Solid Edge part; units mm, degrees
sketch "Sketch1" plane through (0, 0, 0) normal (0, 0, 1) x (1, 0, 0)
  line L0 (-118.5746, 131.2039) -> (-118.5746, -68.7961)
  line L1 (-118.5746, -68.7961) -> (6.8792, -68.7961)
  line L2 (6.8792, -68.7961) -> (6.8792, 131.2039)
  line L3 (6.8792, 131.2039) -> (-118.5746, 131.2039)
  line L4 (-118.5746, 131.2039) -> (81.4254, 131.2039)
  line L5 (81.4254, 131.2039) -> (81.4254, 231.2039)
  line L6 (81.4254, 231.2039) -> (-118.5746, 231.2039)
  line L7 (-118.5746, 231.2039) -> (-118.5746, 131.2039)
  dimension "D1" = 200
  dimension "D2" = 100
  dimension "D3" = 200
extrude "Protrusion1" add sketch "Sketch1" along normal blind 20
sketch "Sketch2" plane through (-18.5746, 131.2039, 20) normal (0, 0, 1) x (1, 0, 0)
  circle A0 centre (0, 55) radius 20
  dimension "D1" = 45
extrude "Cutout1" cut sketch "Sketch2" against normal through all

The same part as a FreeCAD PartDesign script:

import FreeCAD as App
import Part
import Sketcher
from FreeCAD import Vector

doc = App.newDocument("Part")
body = doc.addObject("PartDesign::Body", "Body")

sketch1 = body.newObject("Sketcher::SketchObject", "Sketch")
sketch1.AttachmentSupport = (doc.getObject("XY_Plane"), [""])
sketch1.MapMode = "FlatFace"
sketch1.addGeometry(Part.LineSegment(Vector(6.8792, -68.7961, 0), Vector(6.8792, 131.2039, 0)), False)
sketch1.addGeometry(Part.LineSegment(Vector(6.8792, 131.2039, 0), Vector(81.4254, 131.2039, 0)), False)
sketch1.addGeometry(Part.LineSegment(Vector(81.4254, 131.2039, 0), Vector(81.4254, 231.2039, 0)), False)
sketch1.addGeometry(Part.LineSegment(Vector(81.4254, 231.2039, 0), Vector(-118.5746, 231.2039, 0)), False)
sketch1.addGeometry(Part.LineSegment(Vector(-118.5746, 231.2039, 0), Vector(-118.5746, -68.7961, 0)), False)
sketch1.addGeometry(Part.LineSegment(Vector(-118.5746, -68.7961, 0), Vector(6.8792, -68.7961, 0)), False)
sketch1.addConstraint(Sketcher.Constraint("Coincident", 0, 2, 1, 1))
sketch1.addConstraint(Sketcher.Constraint("Coincident", 1, 2, 2, 1))
sketch1.addConstraint(Sketcher.Constraint("Coincident", 2, 2, 3, 1))
sketch1.addConstraint(Sketcher.Constraint("Coincident", 3, 2, 4, 1))
sketch1.addConstraint(Sketcher.Constraint("Coincident", 4, 2, 5, 1))
sketch1.addConstraint(Sketcher.Constraint("Coincident", 5, 2, 0, 1))
sketch1.addConstraint(Sketcher.Constraint("Vertical", 0))
sketch1.addConstraint(Sketcher.Constraint("Horizontal", 1))
sketch1.addConstraint(Sketcher.Constraint("Vertical", 2))
sketch1.addConstraint(Sketcher.Constraint("Horizontal", 3))
sketch1.addConstraint(Sketcher.Constraint("Vertical", 4))
sketch1.addConstraint(Sketcher.Constraint("Horizontal", 5))
sketch1.addConstraint(Sketcher.Constraint("Equal", 3, 0))
sketch1.addConstraint(Sketcher.Constraint("DistanceX", 3, 2, 3, 1, 200.0))
sketch1.addConstraint(Sketcher.Constraint("DistanceY", 2, 1, 2, 2, 100.0))
sketch1.addConstraint(Sketcher.Constraint("DistanceX", -1, 1, 1, 2, 81.4254))
sketch1.addConstraint(Sketcher.Constraint("DistanceX", 1, 1, 1, 2, 74.5462))
sketch1.addConstraint(Sketcher.Constraint("DistanceY", -1, 1, 0, 2, 131.204))
pad1 = body.newObject("PartDesign::Pad", "Pad")
pad1.Profile = sketch1
pad1.Length = 20

sketch2 = body.newObject("Sketcher::SketchObject", "Sketch001")
sketch2.AttachmentSupport = (doc.getObject("XY_Plane"), [""])
sketch2.MapMode = "FlatFace"
sketch2.AttachmentOffset = App.Placement(Vector(0, 0, 20), App.Rotation())
sketch2.addGeometry(Part.Circle(Vector(-18.5746, 186.2039, 0), Vector(0, 0, 1), 20), False)
sketch2.addConstraint(Sketcher.Constraint("Diameter", 0, 40.0))
sketch2.addConstraint(Sketcher.Constraint("DistanceY", -1, 1, 0, 3, 186.204))
sketch2.addConstraint(Sketcher.Constraint("DistanceX", 0, 3, -1, 1, 18.5746))
pocket1 = body.newObject("PartDesign::Pocket", "Pocket")
pocket1.Profile = sketch2
pocket1.Type = "ThroughAll"

doc.recompute()
